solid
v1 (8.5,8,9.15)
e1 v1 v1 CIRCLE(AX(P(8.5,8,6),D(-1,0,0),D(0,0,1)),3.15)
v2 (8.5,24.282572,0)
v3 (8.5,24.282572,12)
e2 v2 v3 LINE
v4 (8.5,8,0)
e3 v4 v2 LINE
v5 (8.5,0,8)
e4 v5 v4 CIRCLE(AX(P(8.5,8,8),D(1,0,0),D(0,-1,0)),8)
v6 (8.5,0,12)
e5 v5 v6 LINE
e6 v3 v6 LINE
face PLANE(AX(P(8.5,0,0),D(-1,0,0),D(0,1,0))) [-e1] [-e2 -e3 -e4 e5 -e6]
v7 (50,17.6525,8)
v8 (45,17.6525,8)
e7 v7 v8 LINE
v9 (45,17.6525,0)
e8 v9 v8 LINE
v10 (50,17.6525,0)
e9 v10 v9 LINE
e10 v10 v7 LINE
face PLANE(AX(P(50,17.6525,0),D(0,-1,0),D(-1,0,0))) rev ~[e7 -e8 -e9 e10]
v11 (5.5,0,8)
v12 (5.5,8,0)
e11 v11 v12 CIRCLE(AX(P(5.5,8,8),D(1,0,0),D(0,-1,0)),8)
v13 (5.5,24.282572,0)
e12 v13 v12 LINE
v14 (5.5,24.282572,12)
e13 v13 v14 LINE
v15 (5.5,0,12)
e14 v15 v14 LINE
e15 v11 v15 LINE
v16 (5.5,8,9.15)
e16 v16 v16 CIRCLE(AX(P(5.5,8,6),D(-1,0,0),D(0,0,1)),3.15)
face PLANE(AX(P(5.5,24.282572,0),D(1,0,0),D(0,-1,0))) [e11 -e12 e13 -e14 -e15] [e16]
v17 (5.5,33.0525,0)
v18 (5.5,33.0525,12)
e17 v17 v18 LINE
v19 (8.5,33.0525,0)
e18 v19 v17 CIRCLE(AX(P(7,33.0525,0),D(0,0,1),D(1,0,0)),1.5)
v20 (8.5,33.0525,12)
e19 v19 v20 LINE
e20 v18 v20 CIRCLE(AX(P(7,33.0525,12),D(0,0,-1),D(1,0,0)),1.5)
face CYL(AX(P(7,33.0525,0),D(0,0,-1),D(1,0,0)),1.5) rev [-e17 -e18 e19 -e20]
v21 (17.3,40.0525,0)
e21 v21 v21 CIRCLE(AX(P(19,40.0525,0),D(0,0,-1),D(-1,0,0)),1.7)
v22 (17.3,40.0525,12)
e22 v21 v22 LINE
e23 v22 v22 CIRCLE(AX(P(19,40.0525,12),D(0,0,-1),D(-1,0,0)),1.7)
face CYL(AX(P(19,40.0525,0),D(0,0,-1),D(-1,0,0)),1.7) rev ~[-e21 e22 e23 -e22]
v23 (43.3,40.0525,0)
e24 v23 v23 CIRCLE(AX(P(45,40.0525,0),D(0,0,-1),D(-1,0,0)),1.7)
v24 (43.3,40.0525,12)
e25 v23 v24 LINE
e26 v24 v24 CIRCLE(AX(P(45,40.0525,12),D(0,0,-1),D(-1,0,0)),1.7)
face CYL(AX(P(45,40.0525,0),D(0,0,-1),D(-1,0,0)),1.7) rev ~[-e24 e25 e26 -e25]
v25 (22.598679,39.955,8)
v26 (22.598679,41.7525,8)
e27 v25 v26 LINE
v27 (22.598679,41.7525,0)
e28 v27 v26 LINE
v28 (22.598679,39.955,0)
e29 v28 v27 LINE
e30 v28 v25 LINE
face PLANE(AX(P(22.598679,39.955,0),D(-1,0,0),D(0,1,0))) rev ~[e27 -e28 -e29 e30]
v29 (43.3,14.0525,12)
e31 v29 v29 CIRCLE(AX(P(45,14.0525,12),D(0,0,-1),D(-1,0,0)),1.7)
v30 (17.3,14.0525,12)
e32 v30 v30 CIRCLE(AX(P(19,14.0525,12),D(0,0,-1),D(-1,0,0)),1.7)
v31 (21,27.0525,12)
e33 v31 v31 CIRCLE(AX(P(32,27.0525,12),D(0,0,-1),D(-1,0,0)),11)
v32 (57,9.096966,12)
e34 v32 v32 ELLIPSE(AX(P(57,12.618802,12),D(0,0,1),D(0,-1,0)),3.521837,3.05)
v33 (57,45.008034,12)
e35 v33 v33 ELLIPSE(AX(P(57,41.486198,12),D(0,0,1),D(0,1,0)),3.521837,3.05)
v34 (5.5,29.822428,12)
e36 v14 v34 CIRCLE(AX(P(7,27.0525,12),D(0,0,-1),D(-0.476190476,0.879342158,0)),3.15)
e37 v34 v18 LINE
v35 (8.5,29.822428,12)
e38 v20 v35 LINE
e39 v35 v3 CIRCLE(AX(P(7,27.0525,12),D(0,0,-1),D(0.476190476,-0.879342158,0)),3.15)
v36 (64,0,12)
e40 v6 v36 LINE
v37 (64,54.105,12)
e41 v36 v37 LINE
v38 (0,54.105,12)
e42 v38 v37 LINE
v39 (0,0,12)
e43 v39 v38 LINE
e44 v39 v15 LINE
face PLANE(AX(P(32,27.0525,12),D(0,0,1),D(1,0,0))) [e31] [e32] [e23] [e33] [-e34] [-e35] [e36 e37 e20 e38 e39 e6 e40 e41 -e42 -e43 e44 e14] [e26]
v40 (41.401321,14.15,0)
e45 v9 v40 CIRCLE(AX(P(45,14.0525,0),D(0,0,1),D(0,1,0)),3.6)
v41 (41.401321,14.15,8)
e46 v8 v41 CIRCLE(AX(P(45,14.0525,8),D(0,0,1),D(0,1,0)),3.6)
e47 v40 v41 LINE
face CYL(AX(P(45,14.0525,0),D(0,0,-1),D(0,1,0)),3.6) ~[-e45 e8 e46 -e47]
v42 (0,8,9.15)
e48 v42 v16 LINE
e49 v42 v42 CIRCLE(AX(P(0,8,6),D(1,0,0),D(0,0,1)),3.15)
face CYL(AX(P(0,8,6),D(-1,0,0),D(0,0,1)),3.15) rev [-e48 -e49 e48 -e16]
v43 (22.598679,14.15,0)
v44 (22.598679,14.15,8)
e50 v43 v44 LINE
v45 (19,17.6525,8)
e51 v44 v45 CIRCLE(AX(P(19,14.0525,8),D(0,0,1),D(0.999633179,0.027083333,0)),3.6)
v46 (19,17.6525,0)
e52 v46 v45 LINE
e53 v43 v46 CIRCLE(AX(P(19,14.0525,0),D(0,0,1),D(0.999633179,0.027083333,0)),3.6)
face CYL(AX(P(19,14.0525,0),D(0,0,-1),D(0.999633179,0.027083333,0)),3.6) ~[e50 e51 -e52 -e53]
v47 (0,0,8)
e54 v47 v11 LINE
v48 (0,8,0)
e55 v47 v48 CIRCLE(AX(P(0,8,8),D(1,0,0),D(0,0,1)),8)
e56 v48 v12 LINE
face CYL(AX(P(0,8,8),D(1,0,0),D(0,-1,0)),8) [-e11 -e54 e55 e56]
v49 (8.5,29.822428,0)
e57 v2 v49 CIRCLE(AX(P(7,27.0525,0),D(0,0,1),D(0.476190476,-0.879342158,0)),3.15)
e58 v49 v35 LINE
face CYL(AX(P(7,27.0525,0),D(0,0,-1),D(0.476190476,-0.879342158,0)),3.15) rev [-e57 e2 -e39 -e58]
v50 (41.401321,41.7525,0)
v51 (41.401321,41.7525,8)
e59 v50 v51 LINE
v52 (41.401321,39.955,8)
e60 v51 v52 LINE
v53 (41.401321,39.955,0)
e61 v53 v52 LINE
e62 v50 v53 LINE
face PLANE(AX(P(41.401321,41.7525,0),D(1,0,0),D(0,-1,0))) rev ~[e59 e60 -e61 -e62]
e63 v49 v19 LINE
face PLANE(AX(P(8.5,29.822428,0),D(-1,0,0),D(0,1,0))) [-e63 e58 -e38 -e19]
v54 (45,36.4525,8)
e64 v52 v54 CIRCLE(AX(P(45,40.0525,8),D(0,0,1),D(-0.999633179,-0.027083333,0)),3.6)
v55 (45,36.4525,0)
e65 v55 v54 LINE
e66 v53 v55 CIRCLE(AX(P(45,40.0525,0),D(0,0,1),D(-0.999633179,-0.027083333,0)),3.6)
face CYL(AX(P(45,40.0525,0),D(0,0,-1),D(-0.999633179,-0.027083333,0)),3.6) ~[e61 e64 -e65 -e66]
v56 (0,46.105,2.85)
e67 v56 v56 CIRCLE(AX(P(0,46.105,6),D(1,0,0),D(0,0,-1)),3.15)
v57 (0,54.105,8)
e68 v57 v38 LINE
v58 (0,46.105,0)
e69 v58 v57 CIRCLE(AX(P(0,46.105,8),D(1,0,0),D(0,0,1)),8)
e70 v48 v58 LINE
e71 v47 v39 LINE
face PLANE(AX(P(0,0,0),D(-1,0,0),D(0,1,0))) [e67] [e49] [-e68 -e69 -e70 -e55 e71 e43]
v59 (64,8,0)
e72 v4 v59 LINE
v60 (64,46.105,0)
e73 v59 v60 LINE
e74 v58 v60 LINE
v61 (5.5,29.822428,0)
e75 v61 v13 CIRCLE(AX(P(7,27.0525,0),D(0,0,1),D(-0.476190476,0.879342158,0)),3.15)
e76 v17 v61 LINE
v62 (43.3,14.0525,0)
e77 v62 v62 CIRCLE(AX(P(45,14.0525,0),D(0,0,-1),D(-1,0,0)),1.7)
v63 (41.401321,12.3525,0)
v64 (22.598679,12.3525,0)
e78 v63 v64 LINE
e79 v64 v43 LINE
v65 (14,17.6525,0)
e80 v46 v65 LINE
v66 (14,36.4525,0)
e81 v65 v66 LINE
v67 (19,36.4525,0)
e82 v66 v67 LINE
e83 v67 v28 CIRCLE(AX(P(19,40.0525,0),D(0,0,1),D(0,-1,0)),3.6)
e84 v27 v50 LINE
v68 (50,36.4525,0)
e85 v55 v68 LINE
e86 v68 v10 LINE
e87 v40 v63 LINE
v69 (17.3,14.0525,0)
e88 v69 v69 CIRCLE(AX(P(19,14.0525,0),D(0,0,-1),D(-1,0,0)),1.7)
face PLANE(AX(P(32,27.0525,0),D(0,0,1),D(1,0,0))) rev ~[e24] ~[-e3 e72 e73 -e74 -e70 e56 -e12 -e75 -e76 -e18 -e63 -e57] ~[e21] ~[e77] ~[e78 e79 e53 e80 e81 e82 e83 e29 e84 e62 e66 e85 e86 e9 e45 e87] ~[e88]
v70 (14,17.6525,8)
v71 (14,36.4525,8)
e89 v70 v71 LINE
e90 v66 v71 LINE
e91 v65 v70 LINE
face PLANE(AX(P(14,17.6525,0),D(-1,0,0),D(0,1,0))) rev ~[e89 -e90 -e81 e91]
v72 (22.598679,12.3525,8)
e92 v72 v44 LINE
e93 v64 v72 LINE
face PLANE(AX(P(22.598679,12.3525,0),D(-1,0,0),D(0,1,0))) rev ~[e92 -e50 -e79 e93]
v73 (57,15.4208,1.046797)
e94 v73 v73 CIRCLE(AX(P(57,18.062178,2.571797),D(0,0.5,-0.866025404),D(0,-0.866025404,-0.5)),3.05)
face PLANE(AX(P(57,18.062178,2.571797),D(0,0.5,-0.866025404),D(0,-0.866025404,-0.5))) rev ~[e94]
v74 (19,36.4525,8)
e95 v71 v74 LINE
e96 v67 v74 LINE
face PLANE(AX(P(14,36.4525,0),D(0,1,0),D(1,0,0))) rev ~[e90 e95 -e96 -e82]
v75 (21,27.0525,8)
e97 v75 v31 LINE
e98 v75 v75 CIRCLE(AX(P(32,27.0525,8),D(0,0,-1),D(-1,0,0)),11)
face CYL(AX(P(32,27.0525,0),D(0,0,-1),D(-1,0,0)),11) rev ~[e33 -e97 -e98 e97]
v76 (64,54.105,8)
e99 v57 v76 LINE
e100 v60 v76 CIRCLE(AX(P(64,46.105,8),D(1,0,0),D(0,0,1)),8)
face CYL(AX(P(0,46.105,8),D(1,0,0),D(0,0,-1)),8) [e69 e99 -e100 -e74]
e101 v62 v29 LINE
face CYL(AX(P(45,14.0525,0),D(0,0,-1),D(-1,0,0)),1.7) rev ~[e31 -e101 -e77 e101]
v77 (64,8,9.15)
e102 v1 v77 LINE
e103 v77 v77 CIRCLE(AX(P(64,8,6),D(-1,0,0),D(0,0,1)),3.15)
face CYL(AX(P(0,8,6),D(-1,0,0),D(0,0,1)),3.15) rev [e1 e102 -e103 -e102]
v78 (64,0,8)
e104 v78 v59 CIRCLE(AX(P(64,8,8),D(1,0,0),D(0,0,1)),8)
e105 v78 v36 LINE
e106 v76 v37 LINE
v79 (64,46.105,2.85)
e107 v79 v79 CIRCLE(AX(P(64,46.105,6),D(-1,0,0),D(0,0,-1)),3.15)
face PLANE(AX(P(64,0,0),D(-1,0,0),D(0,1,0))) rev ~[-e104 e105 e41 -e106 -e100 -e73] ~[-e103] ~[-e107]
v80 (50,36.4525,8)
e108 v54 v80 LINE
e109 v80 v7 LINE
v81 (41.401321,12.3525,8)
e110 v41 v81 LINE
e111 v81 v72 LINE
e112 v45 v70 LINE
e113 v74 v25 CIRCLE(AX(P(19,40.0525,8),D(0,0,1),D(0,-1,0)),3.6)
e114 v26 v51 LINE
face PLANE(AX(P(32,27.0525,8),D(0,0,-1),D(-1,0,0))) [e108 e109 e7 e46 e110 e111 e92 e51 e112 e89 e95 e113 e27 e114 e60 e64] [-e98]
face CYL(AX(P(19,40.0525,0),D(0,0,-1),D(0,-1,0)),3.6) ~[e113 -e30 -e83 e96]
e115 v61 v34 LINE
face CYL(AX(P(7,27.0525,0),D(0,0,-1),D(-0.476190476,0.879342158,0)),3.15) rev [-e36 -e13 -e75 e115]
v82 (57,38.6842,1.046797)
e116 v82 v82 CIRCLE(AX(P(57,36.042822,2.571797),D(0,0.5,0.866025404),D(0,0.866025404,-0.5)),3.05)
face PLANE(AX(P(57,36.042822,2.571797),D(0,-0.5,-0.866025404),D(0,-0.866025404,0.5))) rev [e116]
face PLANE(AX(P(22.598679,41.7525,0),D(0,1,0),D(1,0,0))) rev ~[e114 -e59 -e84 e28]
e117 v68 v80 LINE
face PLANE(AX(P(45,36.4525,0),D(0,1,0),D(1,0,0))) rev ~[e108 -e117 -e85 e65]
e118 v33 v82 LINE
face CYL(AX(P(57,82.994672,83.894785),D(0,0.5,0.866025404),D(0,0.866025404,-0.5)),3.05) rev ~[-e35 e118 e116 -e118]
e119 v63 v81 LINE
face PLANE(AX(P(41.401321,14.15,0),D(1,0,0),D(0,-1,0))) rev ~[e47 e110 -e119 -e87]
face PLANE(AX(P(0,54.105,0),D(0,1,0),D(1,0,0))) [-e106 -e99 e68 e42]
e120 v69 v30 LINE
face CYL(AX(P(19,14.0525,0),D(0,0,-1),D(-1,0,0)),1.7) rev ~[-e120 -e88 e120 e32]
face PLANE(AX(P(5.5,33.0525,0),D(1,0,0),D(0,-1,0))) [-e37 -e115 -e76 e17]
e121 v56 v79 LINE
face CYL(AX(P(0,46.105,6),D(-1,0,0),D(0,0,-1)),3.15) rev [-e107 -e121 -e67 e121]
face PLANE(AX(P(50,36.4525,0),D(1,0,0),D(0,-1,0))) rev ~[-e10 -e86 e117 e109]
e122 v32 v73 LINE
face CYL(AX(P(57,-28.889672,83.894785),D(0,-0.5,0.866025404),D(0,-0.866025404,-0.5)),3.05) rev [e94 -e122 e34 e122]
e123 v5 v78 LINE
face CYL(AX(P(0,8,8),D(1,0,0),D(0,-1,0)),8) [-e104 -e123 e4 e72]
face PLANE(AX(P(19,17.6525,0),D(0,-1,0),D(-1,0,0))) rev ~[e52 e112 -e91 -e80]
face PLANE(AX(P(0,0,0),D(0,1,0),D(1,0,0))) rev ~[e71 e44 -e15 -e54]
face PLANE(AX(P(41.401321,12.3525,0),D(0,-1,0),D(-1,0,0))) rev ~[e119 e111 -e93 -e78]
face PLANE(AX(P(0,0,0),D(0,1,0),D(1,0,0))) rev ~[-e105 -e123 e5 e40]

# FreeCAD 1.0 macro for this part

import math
import FreeCAD as App
import Part
import Sketcher
from FreeCAD import Vector


def edges_at(feature, points):
    """Names of the edges that pass closest to the given points."""
    edges = feature.Shape.Edges
    near = lambda p: min(range(len(edges)), key=lambda i: edges[i].distToShape(Part.Vertex(*p))[0])
    return sorted({f"Edge{near(p) + 1}" for p in points})

doc = App.newDocument("Part")
params = doc.addObject("Spreadsheet::Sheet", "Params")
for row, (alias, value) in enumerate([
    ("sketch1_width", "64 mm"),
    ("pad1_length", "12 mm"),
    ("sketch2_diameter", "6.3 mm"),
    ("fillet_radius", "8 mm"),
    ("sketch3_diameter", "22 mm"),
    ("sketch3_diameter2", "3.4 mm"),
    ("sketch3_radius", "1.5 mm"),
    ("sketch3_radius2", "3.15 mm"),
    ("sketch4_radius", "3.6 mm"),
    ("sketch4_width", "5 mm"),
    ("sketch4_height", "18.8 mm"),
    ("pocket3_length", "8 mm"),
    ("sketch5_diameter", "6.1 mm"),
    ("pocket4_length", "93.903699 mm"),
], start=1):
    params.set(f"A{row}", alias)
    params.set(f"B{row}", "=" + value)
    params.setAlias(f"B{row}", alias)

body = doc.addObject("PartDesign::Body", "Body")

# Sketch on XY plane
sketch1 = body.newObject("Sketcher::SketchObject", "Sketch")
sketch1.AttachmentSupport = (doc.getObject("XY_Plane"), [""])
sketch1.MapMode = "FlatFace"
sketch1.addGeometry([
    Part.LineSegment(Vector(0, 54.105, 0), Vector(0, 0, 0)),
    Part.LineSegment(Vector(0, 0, 0), Vector(64, 0, 0)),
    Part.LineSegment(Vector(64, 0, 0), Vector(64, 54.105, 0)),
    Part.LineSegment(Vector(64, 54.105, 0), Vector(0, 54.105, 0)),
], False)
sketch1.addConstraint([
    Sketcher.Constraint("Coincident", 0, 2, 1, 1),
    Sketcher.Constraint("Coincident", 1, 2, 2, 1),
    Sketcher.Constraint("Coincident", 2, 2, 3, 1),
    Sketcher.Constraint("Coincident", 3, 2, 0, 1),
    Sketcher.Constraint("Vertical", 0),
    Sketcher.Constraint("Horizontal", 1),
    Sketcher.Constraint("Vertical", 2),
    Sketcher.Constraint("Horizontal", 3),
    Sketcher.Constraint("Coincident", 0, 2, -1, 1),
    Sketcher.Constraint("DistanceX", 1, 1, 1, 2, 64.0),
    Sketcher.Constraint("DistanceY", 0, 2, 0, 1, 54.105),
])
sketch1.setExpression("Constraints[9]", "Params.sketch1_width")
pad1 = body.newObject("PartDesign::Pad", "Pad")
pad1.Profile = sketch1
pad1.setExpression("Length", "Params.pad1_length")

# Sketch on YZ plane
sketch2 = body.newObject("Sketcher::SketchObject", "Sketch001")
sketch2.AttachmentSupport = (doc.getObject("YZ_Plane"), [""])
sketch2.MapMode = "FlatFace"
sketch2.addGeometry([
    Part.Circle(Vector(46.105, 6, 0), Vector(0, 0, 1), 3.15),
    Part.Circle(Vector(8, 6, 0), Vector(0, 0, 1), 3.15),
], False)
sketch2.addConstraint([
    Sketcher.Constraint("Equal", 0, 1),
    Sketcher.Constraint("Horizontal", 0, 3, 1, 3),
    Sketcher.Constraint("Diameter", 0, 6.3),
    Sketcher.Constraint("DistanceY", -1, 1, 0, 3, 6.0),
    Sketcher.Constraint("DistanceX", -1, 1, 1, 3, 8.0),
    Sketcher.Constraint("DistanceX", -1, 1, 0, 3, 46.105),
])
sketch2.setExpression("Constraints[2]", "Params.sketch2_diameter")
pocket1 = body.newObject("PartDesign::Pocket", "Pocket")
pocket1.Profile = sketch2
pocket1.Type = "ThroughAll"
pocket1.Reversed = True
doc.recompute()

fillet = body.newObject("PartDesign::Fillet", "Fillet")
fillet.Base = (pocket1, edges_at(pocket1, [(32, 54.105, 0), (32, 0, 0)]))
fillet.setExpression("Radius", "Params.fillet_radius")

# Sketch on XY plane
sketch3 = body.newObject("Sketcher::SketchObject", "Sketch002")
sketch3.AttachmentSupport = (doc.getObject("XY_Plane"), [""])
sketch3.MapMode = "FlatFace"
sketch3.addGeometry([
    Part.Circle(Vector(32, 27.0525, 0), Vector(0, 0, 1), 11),  # 0
    Part.Circle(Vector(19, 40.0525, 0), Vector(0, 0, 1), 1.7),  # 1
    Part.Circle(Vector(19, 14.0525, 0), Vector(0, 0, 1), 1.7),  # 2
    Part.Circle(Vector(45, 14.0525, 0), Vector(0, 0, 1), 1.7),  # 3
    Part.Circle(Vector(45, 40.0525, 0), Vector(0, 0, 1), 1.7),  # 4
    Part.LineSegment(Vector(8.5, 24.282572, 0), Vector(8.5, 0, 0)),  # 5
    Part.LineSegment(Vector(8.5, 0, 0), Vector(5.5, 0, 0)),  # 6
    Part.LineSegment(Vector(5.5, 0, 0), Vector(5.5, 24.282572, 0)),  # 7
    Part.ArcOfCircle(Part.Circle(Vector(7, 27.0525, 0), Vector(0, 0, 1), 3.15), math.radians(118.43689), math.radians(241.56311)),  # 8
    Part.LineSegment(Vector(5.5, 29.822428, 0), Vector(5.5, 33.0525, 0)),  # 9
    Part.ArcOfCircle(Part.Circle(Vector(7, 33.0525, 0), Vector(0, 0, 1), 1.5), math.radians(0), math.radians(180)),  # 10
    Part.LineSegment(Vector(8.5, 33.0525, 0), Vector(8.5, 29.822428, 0)),  # 11
    Part.ArcOfCircle(Part.Circle(Vector(7, 27.0525, 0), Vector(0, 0, 1), 3.15), math.radians(-61.56311), math.radians(61.56311)),  # 12
], False)
sketch3.addConstraint([
    Sketcher.Constraint("Coincident", 5, 2, 6, 1),
    Sketcher.Constraint("Coincident", 6, 2, 7, 1),
    Sketcher.Constraint("Coincident", 7, 2, 8, 2),
    Sketcher.Constraint("Coincident", 8, 1, 9, 1),
    Sketcher.Constraint("Tangent", 9, 2, 10, 2),
    Sketcher.Constraint("Tangent", 10, 1, 11, 1),
    Sketcher.Constraint("Coincident", 11, 2, 12, 2),
    Sketcher.Constraint("Coincident", 12, 1, 5, 1),
    Sketcher.Constraint("Vertical", 5),
    Sketcher.Constraint("Horizontal", 6),
    Sketcher.Constraint("Vertical", 7),
    Sketcher.Constraint("Vertical", 9),
    Sketcher.Constraint("Vertical", 11),
    Sketcher.Constraint("Coincident", 12, 3, 8, 3),
    Sketcher.Constraint("Equal", 1, 2),
    Sketcher.Constraint("Equal", 2, 3),
    Sketcher.Constraint("Equal", 3, 4),
    Sketcher.Constraint("Equal", 8, 12),
    Sketcher.Constraint("PointOnObject", 5, 2, -1),
    Sketcher.Constraint("Horizontal", 2, 3, 3, 3),
    Sketcher.Constraint("Horizontal", 1, 3, 4, 3),
    Sketcher.Constraint("Horizontal", 0, 3, 8, 3),
    Sketcher.Constraint("Horizontal", 8, 1, 11, 2),
    Sketcher.Constraint("Horizontal", 7, 2, 12, 1),
    Sketcher.Constraint("Vertical", 1, 3, 2, 3),
    Sketcher.Constraint("Vertical", 3, 3, 4, 3),
    Sketcher.Constraint("Vertical", 7, 2, 8, 1),
    Sketcher.Constraint("Diameter", 0, 22.0),
    Sketcher.Constraint("Diameter", 1, 3.4),
    Sketcher.Constraint("Radius", 10, 1.5),
    Sketcher.Constraint("Radius", 8, 3.15),
    Sketcher.Constraint("DistanceX", -1, 1, 0, 3, 32.0),
    Sketcher.Constraint("DistanceX", -1, 1, 1, 3, 19.0),
    Sketcher.Constraint("DistanceX", -1, 1, 3, 3, 45.0),
    Sketcher.Constraint("DistanceX", -1, 1, 8, 3, 7.0),
    Sketcher.Constraint("DistanceY", 0, 3, 1, 3, 13.0),
    Sketcher.Constraint("DistanceY", 2, 3, 0, 3, 13.0),
    Sketcher.Constraint("DistanceY", 8, 3, 10, 3, 6.0),
    Sketcher.Constraint("DistanceY", -1, 1, 0, 3, 27.0525),
])
sketch3.setExpression("Constraints[27]", "Params.sketch3_diameter")
sketch3.setExpression("Constraints[28]", "Params.sketch3_diameter2")
sketch3.setExpression("Constraints[29]", "Params.sketch3_radius")
sketch3.setExpression("Constraints[30]", "Params.sketch3_radius2")
pocket2 = body.newObject("PartDesign::Pocket", "Pocket001")
pocket2.Profile = sketch3
pocket2.Type = "ThroughAll"
pocket2.Reversed = True

# Sketch on XY plane
sketch4 = body.newObject("Sketcher::SketchObject", "Sketch003")
sketch4.AttachmentSupport = (doc.getObject("XY_Plane"), [""])
sketch4.MapMode = "FlatFace"
sketch4.addGeometry([
    Part.LineSegment(Vector(19, 17.6525, 0), Vector(14, 17.6525, 0)),  # 0
    Part.LineSegment(Vector(14, 17.6525, 0), Vector(14, 36.4525, 0)),  # 1
    Part.LineSegment(Vector(14, 36.4525, 0), Vector(19, 36.4525, 0)),  # 2
    Part.ArcOfCircle(Part.Circle(Vector(19, 40.0525, 0), Vector(0, 0, 1), 3.6), math.radians(-90), math.radians(-1.55195)),  # 3
    Part.LineSegment(Vector(22.598679, 39.955, 0), Vector(22.598679, 41.7525, 0)),  # 4
    Part.LineSegment(Vector(22.598679, 41.7525, 0), Vector(41.401321, 41.7525, 0)),  # 5
    Part.LineSegment(Vector(41.401321, 41.7525, 0), Vector(41.401321, 39.955, 0)),  # 6
    Part.ArcOfCircle(Part.Circle(Vector(45, 40.0525, 0), Vector(0, 0, 1), 3.6), math.radians(-178.44805), math.radians(-90)),  # 7
    Part.LineSegment(Vector(45, 36.4525, 0), Vector(50, 36.4525, 0)),  # 8
    Part.LineSegment(Vector(50, 36.4525, 0), Vector(50, 17.6525, 0)),  # 9
    Part.LineSegment(Vector(50, 17.6525, 0), Vector(45, 17.6525, 0)),  # 10
    Part.ArcOfCircle(Part.Circle(Vector(45, 14.0525, 0), Vector(0, 0, 1), 3.6), math.radians(90), math.radians(178.44805)),  # 11
    Part.LineSegment(Vector(41.401321, 14.15, 0), Vector(41.401321, 12.3525, 0)),  # 12
    Part.LineSegment(Vector(41.401321, 12.3525, 0), Vector(22.598679, 12.3525, 0)),  # 13
    Part.LineSegment(Vector(22.598679, 12.3525, 0), Vector(22.598679, 14.15, 0)),  # 14
    Part.ArcOfCircle(Part.Circle(Vector(19, 14.0525, 0), Vector(0, 0, 1), 3.6), math.radians(1.55195), math.radians(90)),  # 15
], False)
sketch4.addConstraint([
    Sketcher.Constraint("Coincident", 0, 2, 1, 1),
    Sketcher.Constraint("Coincident", 1, 2, 2, 1),
    Sketcher.Constraint("Tangent", 2, 2, 3, 1),
    Sketcher.Constraint("Coincident", 3, 2, 4, 1),
    Sketcher.Constraint("Coincident", 4, 2, 5, 1),
    Sketcher.Constraint("Coincident", 5, 2, 6, 1),
    Sketcher.Constraint("Coincident", 6, 2, 7, 1),
    Sketcher.Constraint("Tangent", 7, 2, 8, 1),
    Sketcher.Constraint("Coincident", 8, 2, 9, 1),
    Sketcher.Constraint("Coincident", 9, 2, 10, 1),
    Sketcher.Constraint("Tangent", 10, 2, 11, 1),
    Sketcher.Constraint("Coincident", 11, 2, 12, 1),
    Sketcher.Constraint("Coincident", 12, 2, 13, 1),
    Sketcher.Constraint("Coincident", 13, 2, 14, 1),
    Sketcher.Constraint("Coincident", 14, 2, 15, 1),
    Sketcher.Constraint("Tangent", 15, 2, 0, 1),
    Sketcher.Constraint("Horizontal", 0),
    Sketcher.Constraint("Vertical", 1),
    Sketcher.Constraint("Horizontal", 2),
    Sketcher.Constraint("Vertical", 4),
    Sketcher.Constraint("Horizontal", 5),
    Sketcher.Constraint("Vertical", 6),
    Sketcher.Constraint("Horizontal", 8),
    Sketcher.Constraint("Vertical", 9),
    Sketcher.Constraint("Horizontal", 10),
    Sketcher.Constraint("Vertical", 12),
    Sketcher.Constraint("Horizontal", 13),
    Sketcher.Constraint("Vertical", 14),
    Sketcher.Constraint("Equal", 3, 7),
    Sketcher.Constraint("Equal", 7, 11),
    Sketcher.Constraint("Equal", 11, 15),
    Sketcher.Constraint("Horizontal", 3, 3, 7, 3),
    Sketcher.Constraint("Horizontal", 11, 3, 15, 3),
    Sketcher.Constraint("Horizontal", 3, 2, 6, 2),
    Sketcher.Constraint("Horizontal", 11, 2, 14, 2),
    Sketcher.Constraint("Vertical", 7, 3, 11, 3),
    Sketcher.Constraint("Vertical", 3, 3, 15, 3),
    Sketcher.Constraint("Vertical", 6, 2, 11, 2),
    Sketcher.Constraint("Equal", 2, 8),
    Sketcher.Constraint("Equal", 6, 12),
    Sketcher.Constraint("Radius", 3, 3.6),
    Sketcher.Constraint("DistanceX", 0, 2, 0, 1, 5.0),
    Sketcher.Constraint("DistanceY", 1, 1, 1, 2, 18.8),
    Sketcher.Constraint("DistanceX", -1, 1, 3, 3, 19.0),
    Sketcher.Constraint("DistanceX", -1, 1, 7, 3, 45.0),
    Sketcher.Constraint("DistanceY", 3, 3, 4, 2, 1.7),
    Sketcher.Constraint("DistanceY", -1, 1, 11, 2, 14.15),
    Sketcher.Constraint("DistanceY", 4, 1, 4, 2, 1.7975),
])
sketch4.setExpression("Constraints[40]", "Params.sketch4_radius")
sketch4.setExpression("Constraints[41]", "Params.sketch4_width")
sketch4.setExpression("Constraints[42]", "Params.sketch4_height")
pocket3 = body.newObject("PartDesign::Pocket", "Pocket002")
pocket3.Profile = sketch4
pocket3.setExpression("Length", "Params.pocket3_length")
pocket3.Reversed = True

# Sketch on an angled plane
sketch5 = body.newObject("Sketcher::SketchObject", "Sketch004")
sketch5.Placement = App.Placement(Vector(0, -43.549926, 75.430684), App.Rotation(Vector(1, 0, 0), Vector(0, -0.866025404, -0.5), Vector(0, 0.5, -0.866025404), "ZXY"))
sketch5.addGeometry(Part.Circle(Vector(57, -16.928203, 0), Vector(0, 0, 1), 3.05), False)
sketch5.addConstraint([
    Sketcher.Constraint("Diameter", 0, 6.1),
    Sketcher.Constraint("DistanceX", -1, 1, 0, 3, 57.0),
    Sketcher.Constraint("DistanceY", 0, 3, -1, 1, 16.928203),
])
sketch5.setExpression("Constraints[0]", "Params.sketch5_diameter")
pocket4 = body.newObject("PartDesign::Pocket", "Pocket003")
pocket4.Profile = sketch5
pocket4.setExpression("Length", "Params.pocket4_length")
pocket4.Reversed = True
doc.recompute()

datumplane = body.newObject("PartDesign::Plane", "DatumPlane")
datumplane.AttachmentSupport = (doc.getObject("XZ_Plane"), [""])
datumplane.MapMode = "FlatFace"
datumplane.AttachmentOffset = App.Placement(Vector(0, 0, -27.0525), App.Rotation())
mirrored = body.newObject("PartDesign::Mirrored", "Mirrored")
mirrored.Originals = [pocket4]
mirrored.MirrorPlane = (datumplane, [""])
body.Tip = mirrored

doc.recompute()
